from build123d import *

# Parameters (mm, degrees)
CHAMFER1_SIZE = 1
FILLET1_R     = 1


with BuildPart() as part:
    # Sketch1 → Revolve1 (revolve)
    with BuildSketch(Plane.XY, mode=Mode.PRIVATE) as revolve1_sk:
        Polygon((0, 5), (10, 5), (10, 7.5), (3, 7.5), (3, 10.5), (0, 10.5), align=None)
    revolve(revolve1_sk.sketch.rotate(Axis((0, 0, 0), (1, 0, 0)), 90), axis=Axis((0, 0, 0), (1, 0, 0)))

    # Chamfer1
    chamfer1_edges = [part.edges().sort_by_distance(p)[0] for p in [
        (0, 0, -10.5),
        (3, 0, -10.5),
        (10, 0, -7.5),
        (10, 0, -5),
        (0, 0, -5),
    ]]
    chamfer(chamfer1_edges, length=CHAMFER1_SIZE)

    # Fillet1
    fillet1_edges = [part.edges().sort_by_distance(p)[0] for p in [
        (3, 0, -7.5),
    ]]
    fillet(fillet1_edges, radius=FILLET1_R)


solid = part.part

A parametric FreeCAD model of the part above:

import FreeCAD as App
import Part
import Sketcher
from FreeCAD import Vector
Q = App.Units.Quantity


def edges_at(feature, points):
    """Names of the edges that pass closest to the given points."""
    edges = feature.Shape.Edges
    near = lambda p: min(range(len(edges)), key=lambda i: edges[i].distToShape(Part.Vertex(*p))[0])
    return sorted({f"Edge{near(p) + 1}" for p in points})


def add_polygon(sketch, points):
    """Adds a closed chain of lines whose ends are joined by coincident constraints."""
    first, n = sketch.GeometryCount, len(points)
    for a, b in zip(points, points[1:] + points[:1]):
        sketch.addGeometry(Part.LineSegment(App.Vector(*a, 0), App.Vector(*b, 0)), False)
    for i in range(n):
        sketch.addConstraint(Sketcher.Constraint("Coincident", first + i, 2, first + (i + 1) % n, 1))

doc = App.newDocument("Part")
body = doc.addObject("PartDesign::Body", "Body")

sketch1 = doc.addObject("Sketcher::SketchObject", "Sketch")
body.addObject(sketch1)
sketch1.AttachmentSupport = (doc.XY_Plane, [""])
sketch1.MapMode = "FlatFace"
add_polygon(sketch1, [(0, 5), (10, 5), (10, 7.5), (3, 7.5), (3, 10.5), (0, 10.5)])
sketch1.addConstraint(Sketcher.Constraint("Horizontal", 0))
sketch1.addConstraint(Sketcher.Constraint("Vertical", 1))
sketch1.addConstraint(Sketcher.Constraint("Horizontal", 2))
sketch1.addConstraint(Sketcher.Constraint("Vertical", 3))
sketch1.addConstraint(Sketcher.Constraint("Horizontal", 4))
sketch1.addConstraint(Sketcher.Constraint("Vertical", 5))
sketch1.addConstraint(Sketcher.Constraint("PointOnObject", 4, 2, -2))
sketch1.addConstraint(Sketcher.Constraint("Equal", 4, 3))
sketch1.addConstraint(Sketcher.Constraint("DistanceX", 0, 1, 0, 2, Q("10 mm")))
sketch1.addConstraint(Sketcher.Constraint("DistanceX", 2, 2, 2, 1, Q("7 mm")))
sketch1.addConstraint(Sketcher.Constraint("DistanceY", 1, 1, 1, 2, Q("2.5 mm")))
sketch1.addConstraint(Sketcher.Constraint("DistanceY", -1, 1, 0, 2, Q("5 mm")))
revolution = doc.addObject("PartDesign::Revolution", "Revolution")
body.addObject(revolution)
revolution.Profile = sketch1
revolution.ReferenceAxis = (sketch1, ["H_Axis"])
revolution.Angle = 360
doc.recompute()

chamfer = doc.addObject("PartDesign::Chamfer", "Chamfer")
body.addObject(chamfer)
chamfer.Base = (revolution, edges_at(revolution, [
    (0, 0, -10.5),
    (3, 0, -10.5),
    (10, 0, -7.5),
    (10, 0, -5),
    (0, 0, -5),
]))
chamfer.Size = 1
doc.recompute()

fillet = doc.addObject("PartDesign::Fillet", "Fillet")
body.addObject(fillet)
fillet.Base = (chamfer, edges_at(chamfer, [(3, 0, -7.5)]))
fillet.Radius = 1

doc.recompute()
